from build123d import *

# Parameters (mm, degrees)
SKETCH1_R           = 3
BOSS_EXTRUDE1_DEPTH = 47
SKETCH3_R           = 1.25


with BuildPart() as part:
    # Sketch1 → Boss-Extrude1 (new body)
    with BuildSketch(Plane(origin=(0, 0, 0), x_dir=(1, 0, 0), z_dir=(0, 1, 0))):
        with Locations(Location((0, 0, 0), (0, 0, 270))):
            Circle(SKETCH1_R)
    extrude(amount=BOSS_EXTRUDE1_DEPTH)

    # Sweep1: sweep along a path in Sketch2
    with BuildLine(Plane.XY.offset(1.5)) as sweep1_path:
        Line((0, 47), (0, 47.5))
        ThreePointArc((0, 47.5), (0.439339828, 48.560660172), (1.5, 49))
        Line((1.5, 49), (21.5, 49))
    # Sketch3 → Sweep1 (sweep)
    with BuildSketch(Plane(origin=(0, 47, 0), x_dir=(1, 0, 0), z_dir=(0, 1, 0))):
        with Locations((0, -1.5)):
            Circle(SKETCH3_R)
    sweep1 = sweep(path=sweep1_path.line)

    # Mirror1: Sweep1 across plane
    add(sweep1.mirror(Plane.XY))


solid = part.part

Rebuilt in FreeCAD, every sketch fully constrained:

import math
import FreeCAD as App
import Part
import Sketcher
from FreeCAD import Vector
Q = App.Units.Quantity

doc = App.newDocument("Part")
body = doc.addObject("PartDesign::Body", "Body")

# Sketch on XZ plane
sketch1 = body.newObject("Sketcher::SketchObject", "Sketch")
sketch1.AttachmentSupport = (doc.getObject("XZ_Plane"), [""])
sketch1.MapMode = "FlatFace"
sketch1.addGeometry(Part.Circle(Vector(0, 0, 0), Vector(0, 0, 1), 3), False)
sketch1.addConstraint(Sketcher.Constraint("Coincident", 0, 3, -1, 1))
sketch1.addConstraint(Sketcher.Constraint("Diameter", 0, Q("6 mm")))
pad1 = body.newObject("PartDesign::Pad", "Pad")
pad1.Profile = sketch1
pad1.Length = 47
pad1.Reversed = True

# Sketch on XZ plane
sketch2 = body.newObject("Sketcher::SketchObject", "Sketch001")
sketch2.AttachmentSupport = (doc.getObject("XZ_Plane"), [""])
sketch2.MapMode = "FlatFace"
sketch2.AttachmentOffset = App.Placement(Vector(0, 0, -47), App.Rotation())
sketch2.addGeometry(Part.Circle(Vector(0, 1.5, 0), Vector(0, 0, 1), 1.2), False)
sketch2.addConstraint(Sketcher.Constraint("PointOnObject", 0, 3, -2))
sketch2.addConstraint(Sketcher.Constraint("Diameter", 0, Q("2.5 mm")))
sketch2.addConstraint(Sketcher.Constraint("DistanceY", -1, 1, 0, 3, Q("1.5 mm")))

# Sketch on XY plane
sketch3 = body.newObject("Sketcher::SketchObject", "Sketch002")
sketch3.AttachmentSupport = (doc.getObject("XY_Plane"), [""])
sketch3.MapMode = "FlatFace"
sketch3.AttachmentOffset = App.Placement(Vector(0, 0, 1.5), App.Rotation())
sketch3.addGeometry(Part.LineSegment(Vector(0, 47, 0), Vector(0, 47.5, 0)), False)
sketch3.addGeometry(Part.ArcOfCircle(Part.Circle(Vector(1.5, 47.5, 0), Vector(0, 0, 1), 1.5), math.radians(90), math.radians(180)), False)
sketch3.addGeometry(Part.LineSegment(Vector(1.5, 49, 0), Vector(21.5, 49, 0)), False)
sketch3.addConstraint(Sketcher.Constraint("Tangent", 0, 2, 1, 2))
sketch3.addConstraint(Sketcher.Constraint("Tangent", 1, 1, 2, 1))
sketch3.addConstraint(Sketcher.Constraint("Vertical", 0))
sketch3.addConstraint(Sketcher.Constraint("Horizontal", 2))
sketch3.addConstraint(Sketcher.Constraint("PointOnObject", 0, 1, -2))
sketch3.addConstraint(Sketcher.Constraint("Radius", 1, Q("1.5 mm")))
sketch3.addConstraint(Sketcher.Constraint("DistanceX", 2, 1, 2, 2, Q("20 mm")))
sketch3.addConstraint(Sketcher.Constraint("DistanceY", 0, 1, 0, 2, Q("0.5 mm")))
sketch3.addConstraint(Sketcher.Constraint("DistanceY", -1, 1, 0, 1, Q("47 mm")))
doc.recompute()

additivepipe = body.newObject("PartDesign::AdditivePipe", "AdditivePipe")
additivepipe.Profile = sketch2
additivepipe.Spine = (sketch3, ["Edge1", "Edge2", "Edge3"])
doc.recompute()

mirrored = body.newObject("PartDesign::Mirrored", "Mirrored")
mirrored.Originals = [additivepipe]
mirrored.MirrorPlane = (doc.getObject("XY_Plane"), [""])
body.Tip = mirrored

doc.recompute()
